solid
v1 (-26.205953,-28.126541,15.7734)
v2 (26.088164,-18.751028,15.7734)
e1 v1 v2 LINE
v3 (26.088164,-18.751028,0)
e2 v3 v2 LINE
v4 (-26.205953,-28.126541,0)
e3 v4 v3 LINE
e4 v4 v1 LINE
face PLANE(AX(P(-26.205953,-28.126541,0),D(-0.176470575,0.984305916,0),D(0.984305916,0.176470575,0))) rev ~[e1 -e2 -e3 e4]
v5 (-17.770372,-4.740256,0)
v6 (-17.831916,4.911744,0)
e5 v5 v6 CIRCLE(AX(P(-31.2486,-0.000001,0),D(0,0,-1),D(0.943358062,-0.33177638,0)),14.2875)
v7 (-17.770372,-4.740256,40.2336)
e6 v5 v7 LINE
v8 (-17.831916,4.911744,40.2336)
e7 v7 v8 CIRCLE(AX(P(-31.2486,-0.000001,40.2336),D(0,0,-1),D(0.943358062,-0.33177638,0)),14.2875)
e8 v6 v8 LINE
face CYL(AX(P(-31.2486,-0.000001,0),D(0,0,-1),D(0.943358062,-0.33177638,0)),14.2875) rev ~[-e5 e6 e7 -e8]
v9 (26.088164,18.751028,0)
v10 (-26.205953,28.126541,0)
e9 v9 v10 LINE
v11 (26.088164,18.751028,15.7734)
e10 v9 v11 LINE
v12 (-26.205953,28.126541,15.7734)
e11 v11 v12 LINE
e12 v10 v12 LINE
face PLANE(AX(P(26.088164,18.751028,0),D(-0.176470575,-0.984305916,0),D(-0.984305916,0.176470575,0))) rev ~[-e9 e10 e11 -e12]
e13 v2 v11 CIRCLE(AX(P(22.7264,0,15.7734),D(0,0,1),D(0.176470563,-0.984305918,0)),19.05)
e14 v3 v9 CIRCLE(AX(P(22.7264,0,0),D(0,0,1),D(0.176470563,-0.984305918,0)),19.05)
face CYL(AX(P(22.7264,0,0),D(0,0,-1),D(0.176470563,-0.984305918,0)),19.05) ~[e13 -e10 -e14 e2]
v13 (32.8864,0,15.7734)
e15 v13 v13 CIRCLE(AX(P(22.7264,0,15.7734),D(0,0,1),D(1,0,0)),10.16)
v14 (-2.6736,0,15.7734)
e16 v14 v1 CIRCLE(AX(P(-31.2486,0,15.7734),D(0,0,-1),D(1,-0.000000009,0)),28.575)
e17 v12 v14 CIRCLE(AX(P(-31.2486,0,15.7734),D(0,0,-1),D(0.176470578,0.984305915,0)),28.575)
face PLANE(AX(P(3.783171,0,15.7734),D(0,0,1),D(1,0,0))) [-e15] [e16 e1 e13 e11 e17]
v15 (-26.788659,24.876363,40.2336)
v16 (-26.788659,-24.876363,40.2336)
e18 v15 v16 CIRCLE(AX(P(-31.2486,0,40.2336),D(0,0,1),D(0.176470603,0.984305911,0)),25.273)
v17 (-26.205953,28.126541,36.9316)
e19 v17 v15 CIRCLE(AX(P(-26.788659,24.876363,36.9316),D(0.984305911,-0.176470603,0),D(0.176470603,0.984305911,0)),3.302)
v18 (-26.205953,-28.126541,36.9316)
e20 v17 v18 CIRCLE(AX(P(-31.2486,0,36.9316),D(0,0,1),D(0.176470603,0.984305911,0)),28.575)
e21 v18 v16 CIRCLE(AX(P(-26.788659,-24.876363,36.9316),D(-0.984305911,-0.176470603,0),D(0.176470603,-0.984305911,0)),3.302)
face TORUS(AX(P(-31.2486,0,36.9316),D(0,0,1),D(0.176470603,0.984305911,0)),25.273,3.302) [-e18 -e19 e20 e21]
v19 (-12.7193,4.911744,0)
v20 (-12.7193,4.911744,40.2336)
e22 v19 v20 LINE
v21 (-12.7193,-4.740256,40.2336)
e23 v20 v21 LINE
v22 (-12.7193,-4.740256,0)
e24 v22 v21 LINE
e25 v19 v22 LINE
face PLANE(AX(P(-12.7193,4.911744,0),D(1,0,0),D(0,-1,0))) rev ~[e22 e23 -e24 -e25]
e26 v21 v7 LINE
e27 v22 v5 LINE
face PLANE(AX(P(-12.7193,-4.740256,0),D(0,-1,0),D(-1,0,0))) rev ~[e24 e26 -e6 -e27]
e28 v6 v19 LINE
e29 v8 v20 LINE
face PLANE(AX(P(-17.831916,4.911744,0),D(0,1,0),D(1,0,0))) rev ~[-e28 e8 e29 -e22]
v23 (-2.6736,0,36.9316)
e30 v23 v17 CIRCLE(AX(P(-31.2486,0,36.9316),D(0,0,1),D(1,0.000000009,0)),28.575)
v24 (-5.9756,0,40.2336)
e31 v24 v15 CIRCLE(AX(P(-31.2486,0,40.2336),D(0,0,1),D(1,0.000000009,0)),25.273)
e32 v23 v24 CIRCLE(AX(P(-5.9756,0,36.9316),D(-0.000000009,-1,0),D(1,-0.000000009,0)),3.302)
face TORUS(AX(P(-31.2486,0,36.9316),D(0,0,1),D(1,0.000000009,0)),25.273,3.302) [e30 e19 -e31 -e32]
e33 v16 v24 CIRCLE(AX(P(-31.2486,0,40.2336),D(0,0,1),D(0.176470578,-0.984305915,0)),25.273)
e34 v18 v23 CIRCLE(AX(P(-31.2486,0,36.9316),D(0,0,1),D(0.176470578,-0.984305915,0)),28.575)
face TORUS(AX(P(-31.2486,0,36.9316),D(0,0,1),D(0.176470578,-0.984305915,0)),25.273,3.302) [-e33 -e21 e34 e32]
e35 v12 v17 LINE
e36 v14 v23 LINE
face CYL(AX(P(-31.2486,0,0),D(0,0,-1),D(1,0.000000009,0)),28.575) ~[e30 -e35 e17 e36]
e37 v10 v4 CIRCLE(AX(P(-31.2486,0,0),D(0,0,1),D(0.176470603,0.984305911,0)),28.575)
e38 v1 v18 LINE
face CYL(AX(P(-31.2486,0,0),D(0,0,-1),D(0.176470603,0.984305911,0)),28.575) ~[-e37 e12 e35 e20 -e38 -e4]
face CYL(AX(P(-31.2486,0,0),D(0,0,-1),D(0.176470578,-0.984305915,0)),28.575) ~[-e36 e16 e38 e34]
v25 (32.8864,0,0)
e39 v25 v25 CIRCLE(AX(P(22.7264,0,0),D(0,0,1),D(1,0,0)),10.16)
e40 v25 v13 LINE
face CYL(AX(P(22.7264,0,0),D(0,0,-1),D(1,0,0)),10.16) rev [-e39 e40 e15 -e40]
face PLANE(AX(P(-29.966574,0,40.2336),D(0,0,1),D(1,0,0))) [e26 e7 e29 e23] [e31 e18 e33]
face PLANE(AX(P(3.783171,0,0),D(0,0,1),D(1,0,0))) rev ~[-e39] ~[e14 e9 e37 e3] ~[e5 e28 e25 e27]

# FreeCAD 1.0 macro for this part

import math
import FreeCAD as App
import Part
import Sketcher

V = App.Vector
Q = App.Units.Quantity


def edges_at(feature, points):
    """Names of the edges that pass closest to the given points."""
    edges = feature.Shape.Edges
    near = lambda p: min(range(len(edges)), key=lambda i: edges[i].distToShape(Part.Vertex(*p))[0])
    return sorted({f"Edge{near(p) + 1}" for p in points})

doc = App.newDocument("Part")
params = doc.addObject("Spreadsheet::Sheet", "Params")
for row, (alias, value) in enumerate([
    ("sketch1_radius", "1.125 in"),
    ("sketch1_radius2", "0.5625 in"),
    ("sketch1_height", "0.38 in"),
    ("pad1_length", "1.584 in"),
    ("fillet_radius", "0.13 in"),
    ("sketch2_diameter", "0.8 in"),
    ("sketch2_radius", "0.75 in"),
    ("sketch2_radius2", "1.125 in"),
    ("pad2_length", "0.621 in"),
], start=1):
    params.set(f"A{row}", alias)
    params.set(f"B{row}", "=" + value)
    params.setAlias(f"B{row}", alias)

body = doc.addObject("PartDesign::Body", "Body")

sketch1 = body.newObject("Sketcher::SketchObject", "Sketch")
sketch1.AttachmentSupport = (doc.getObject("XY_Plane"), [""])
sketch1.MapMode = "FlatFace"
sketch1.addGeometry([
    Part.ArcOfCircle(Part.Circle(V(-31.2486, 0, 0), V(0, 0, 1), 28.575), math.radians(-79.835752), math.radians(0)),
    Part.ArcOfCircle(Part.Circle(V(-31.2486, 0, 0), V(0, 0, 1), 28.575), math.radians(0), math.radians(79.835752)),
    Part.ArcOfCircle(Part.Circle(V(-31.2486, 0, 0), V(0, 0, 1), 28.575), math.radians(79.835751), math.radians(280.164249)),
    Part.LineSegment(V(-12.7193, -4.740256, 0), V(-17.770372, -4.740256, 0)),
    Part.ArcOfCircle(Part.Circle(V(-31.2486, -0.000001, 0), V(0, 0, 1), 14.2875), math.radians(20.10729), math.radians(340.62337)),
    Part.LineSegment(V(-17.831916, 4.911744, 0), V(-12.7193, 4.911744, 0)),
    Part.LineSegment(V(-12.7193, 4.911744, 0), V(-12.7193, -4.740256, 0)),
], False)
sketch1.addConstraint([
    Sketcher.Constraint("Tangent", 0, 2, 1, 1),
    Sketcher.Constraint("Tangent", 1, 2, 2, 1),
    Sketcher.Constraint("Tangent", 2, 2, 0, 1),
    Sketcher.Constraint("Coincident", 3, 2, 4, 2),
    Sketcher.Constraint("Coincident", 4, 1, 5, 1),
    Sketcher.Constraint("Coincident", 5, 2, 6, 1),
    Sketcher.Constraint("Coincident", 6, 2, 3, 1),
    Sketcher.Constraint("Horizontal", 3),
    Sketcher.Constraint("Horizontal", 5),
    Sketcher.Constraint("Vertical", 6),
    Sketcher.Constraint("Coincident", 4, 3, 0, 3),
    Sketcher.Constraint("Symmetric", 1, 2, 2, 2, -1),
    Sketcher.Constraint("PointOnObject", 0, 2, -1),
    Sketcher.Constraint("Radius", 0, Q("1.125 in")),
    Sketcher.Constraint("Radius", 4, Q("0.5625 in")),
    Sketcher.Constraint("DistanceY", 6, 2, 6, 1, Q("0.38 in")),
    Sketcher.Constraint("DistanceX", 5, 2, 0, 2, Q("0.3955 in")),
    Sketcher.Constraint("DistanceX", 3, 2, 3, 1, Q("5.051072 mm")),
    Sketcher.Constraint("DistanceX", 0, 3, -1, 1, Q("31.2486 mm")),
    Sketcher.Constraint("DistanceY", -1, 1, 1, 2, Q("28.126541 mm")),
])
sketch1.setExpression("Constraints[13]", "Params.sketch1_radius")
sketch1.setExpression("Constraints[14]", "Params.sketch1_radius2")
sketch1.setExpression("Constraints[15]", "Params.sketch1_height")
pad1 = body.newObject("PartDesign::Pad", "Pad")
pad1.Profile = sketch1
pad1.setExpression("Length", "Params.pad1_length")
doc.recompute()

fillet = body.newObject("PartDesign::Fillet", "Fillet")
fillet.Base = (pad1, edges_at(pad1, [(-59.824, 0, 40.234)]))
fillet.setExpression("Radius", "Params.fillet_radius")

sketch2 = body.newObject("Sketcher::SketchObject", "Sketch001")
sketch2.AttachmentSupport = (doc.getObject("XY_Plane"), [""])
sketch2.MapMode = "FlatFace"
sketch2.addGeometry([
    Part.ArcOfCircle(Part.Circle(V(-31.2486, 0, 0), V(0, 0, 1), 28.575), math.radians(0), math.radians(79.835752)),
    Part.ArcOfCircle(Part.Circle(V(-31.2486, 0, 0), V(0, 0, 1), 28.575), math.radians(-79.835752), math.radians(0)),
    Part.LineSegment(V(-26.205953, -28.126541, 0), V(26.088164, -18.751028, 0)),
    Part.ArcOfCircle(Part.Circle(V(22.7264, 0, 0), V(0, 0, 1), 19.05), math.radians(-79.835753), math.radians(79.835753)),
    Part.LineSegment(V(26.088164, 18.751028, 0), V(-26.205953, 28.126541, 0)),
    Part.Circle(V(22.7264, 0, 0), V(0, 0, 1), 10.16),
], False)
sketch2.addConstraint([
    Sketcher.Constraint("Tangent", 0, 1, 1, 2),
    Sketcher.Constraint("Tangent", 1, 1, 2, 1),
    Sketcher.Constraint("Tangent", 2, 2, 3, 1),
    Sketcher.Constraint("Tangent", 3, 2, 4, 1),
    Sketcher.Constraint("Tangent", 4, 2, 0, 2),
    Sketcher.Constraint("Coincident", 5, 3, 3, 3),
    Sketcher.Constraint("Equal", 0, 1),
    Sketcher.Constraint("Symmetric", 2, 2, 3, 2, -1),
    Sketcher.Constraint("PointOnObject", 0, 1, -1),
    Sketcher.Constraint("Diameter", 5, Q("0.8 in")),
    Sketcher.Constraint("Radius", 3, Q("0.75 in")),
    Sketcher.Constraint("Radius", 0, Q("1.125 in")),
    Sketcher.Constraint("DistanceX", 0, 1, 3, 3, Q("1 in")),
    Sketcher.Constraint("DistanceX", 0, 3, -1, 1, Q("31.2486 mm")),
])
sketch2.setExpression("Constraints[9]", "Params.sketch2_diameter")
sketch2.setExpression("Constraints[10]", "Params.sketch2_radius")
sketch2.setExpression("Constraints[11]", "Params.sketch2_radius2")
pad2 = body.newObject("PartDesign::Pad", "Pad001")
pad2.Profile = sketch2
pad2.setExpression("Length", "Params.pad2_length")

doc.recompute()
